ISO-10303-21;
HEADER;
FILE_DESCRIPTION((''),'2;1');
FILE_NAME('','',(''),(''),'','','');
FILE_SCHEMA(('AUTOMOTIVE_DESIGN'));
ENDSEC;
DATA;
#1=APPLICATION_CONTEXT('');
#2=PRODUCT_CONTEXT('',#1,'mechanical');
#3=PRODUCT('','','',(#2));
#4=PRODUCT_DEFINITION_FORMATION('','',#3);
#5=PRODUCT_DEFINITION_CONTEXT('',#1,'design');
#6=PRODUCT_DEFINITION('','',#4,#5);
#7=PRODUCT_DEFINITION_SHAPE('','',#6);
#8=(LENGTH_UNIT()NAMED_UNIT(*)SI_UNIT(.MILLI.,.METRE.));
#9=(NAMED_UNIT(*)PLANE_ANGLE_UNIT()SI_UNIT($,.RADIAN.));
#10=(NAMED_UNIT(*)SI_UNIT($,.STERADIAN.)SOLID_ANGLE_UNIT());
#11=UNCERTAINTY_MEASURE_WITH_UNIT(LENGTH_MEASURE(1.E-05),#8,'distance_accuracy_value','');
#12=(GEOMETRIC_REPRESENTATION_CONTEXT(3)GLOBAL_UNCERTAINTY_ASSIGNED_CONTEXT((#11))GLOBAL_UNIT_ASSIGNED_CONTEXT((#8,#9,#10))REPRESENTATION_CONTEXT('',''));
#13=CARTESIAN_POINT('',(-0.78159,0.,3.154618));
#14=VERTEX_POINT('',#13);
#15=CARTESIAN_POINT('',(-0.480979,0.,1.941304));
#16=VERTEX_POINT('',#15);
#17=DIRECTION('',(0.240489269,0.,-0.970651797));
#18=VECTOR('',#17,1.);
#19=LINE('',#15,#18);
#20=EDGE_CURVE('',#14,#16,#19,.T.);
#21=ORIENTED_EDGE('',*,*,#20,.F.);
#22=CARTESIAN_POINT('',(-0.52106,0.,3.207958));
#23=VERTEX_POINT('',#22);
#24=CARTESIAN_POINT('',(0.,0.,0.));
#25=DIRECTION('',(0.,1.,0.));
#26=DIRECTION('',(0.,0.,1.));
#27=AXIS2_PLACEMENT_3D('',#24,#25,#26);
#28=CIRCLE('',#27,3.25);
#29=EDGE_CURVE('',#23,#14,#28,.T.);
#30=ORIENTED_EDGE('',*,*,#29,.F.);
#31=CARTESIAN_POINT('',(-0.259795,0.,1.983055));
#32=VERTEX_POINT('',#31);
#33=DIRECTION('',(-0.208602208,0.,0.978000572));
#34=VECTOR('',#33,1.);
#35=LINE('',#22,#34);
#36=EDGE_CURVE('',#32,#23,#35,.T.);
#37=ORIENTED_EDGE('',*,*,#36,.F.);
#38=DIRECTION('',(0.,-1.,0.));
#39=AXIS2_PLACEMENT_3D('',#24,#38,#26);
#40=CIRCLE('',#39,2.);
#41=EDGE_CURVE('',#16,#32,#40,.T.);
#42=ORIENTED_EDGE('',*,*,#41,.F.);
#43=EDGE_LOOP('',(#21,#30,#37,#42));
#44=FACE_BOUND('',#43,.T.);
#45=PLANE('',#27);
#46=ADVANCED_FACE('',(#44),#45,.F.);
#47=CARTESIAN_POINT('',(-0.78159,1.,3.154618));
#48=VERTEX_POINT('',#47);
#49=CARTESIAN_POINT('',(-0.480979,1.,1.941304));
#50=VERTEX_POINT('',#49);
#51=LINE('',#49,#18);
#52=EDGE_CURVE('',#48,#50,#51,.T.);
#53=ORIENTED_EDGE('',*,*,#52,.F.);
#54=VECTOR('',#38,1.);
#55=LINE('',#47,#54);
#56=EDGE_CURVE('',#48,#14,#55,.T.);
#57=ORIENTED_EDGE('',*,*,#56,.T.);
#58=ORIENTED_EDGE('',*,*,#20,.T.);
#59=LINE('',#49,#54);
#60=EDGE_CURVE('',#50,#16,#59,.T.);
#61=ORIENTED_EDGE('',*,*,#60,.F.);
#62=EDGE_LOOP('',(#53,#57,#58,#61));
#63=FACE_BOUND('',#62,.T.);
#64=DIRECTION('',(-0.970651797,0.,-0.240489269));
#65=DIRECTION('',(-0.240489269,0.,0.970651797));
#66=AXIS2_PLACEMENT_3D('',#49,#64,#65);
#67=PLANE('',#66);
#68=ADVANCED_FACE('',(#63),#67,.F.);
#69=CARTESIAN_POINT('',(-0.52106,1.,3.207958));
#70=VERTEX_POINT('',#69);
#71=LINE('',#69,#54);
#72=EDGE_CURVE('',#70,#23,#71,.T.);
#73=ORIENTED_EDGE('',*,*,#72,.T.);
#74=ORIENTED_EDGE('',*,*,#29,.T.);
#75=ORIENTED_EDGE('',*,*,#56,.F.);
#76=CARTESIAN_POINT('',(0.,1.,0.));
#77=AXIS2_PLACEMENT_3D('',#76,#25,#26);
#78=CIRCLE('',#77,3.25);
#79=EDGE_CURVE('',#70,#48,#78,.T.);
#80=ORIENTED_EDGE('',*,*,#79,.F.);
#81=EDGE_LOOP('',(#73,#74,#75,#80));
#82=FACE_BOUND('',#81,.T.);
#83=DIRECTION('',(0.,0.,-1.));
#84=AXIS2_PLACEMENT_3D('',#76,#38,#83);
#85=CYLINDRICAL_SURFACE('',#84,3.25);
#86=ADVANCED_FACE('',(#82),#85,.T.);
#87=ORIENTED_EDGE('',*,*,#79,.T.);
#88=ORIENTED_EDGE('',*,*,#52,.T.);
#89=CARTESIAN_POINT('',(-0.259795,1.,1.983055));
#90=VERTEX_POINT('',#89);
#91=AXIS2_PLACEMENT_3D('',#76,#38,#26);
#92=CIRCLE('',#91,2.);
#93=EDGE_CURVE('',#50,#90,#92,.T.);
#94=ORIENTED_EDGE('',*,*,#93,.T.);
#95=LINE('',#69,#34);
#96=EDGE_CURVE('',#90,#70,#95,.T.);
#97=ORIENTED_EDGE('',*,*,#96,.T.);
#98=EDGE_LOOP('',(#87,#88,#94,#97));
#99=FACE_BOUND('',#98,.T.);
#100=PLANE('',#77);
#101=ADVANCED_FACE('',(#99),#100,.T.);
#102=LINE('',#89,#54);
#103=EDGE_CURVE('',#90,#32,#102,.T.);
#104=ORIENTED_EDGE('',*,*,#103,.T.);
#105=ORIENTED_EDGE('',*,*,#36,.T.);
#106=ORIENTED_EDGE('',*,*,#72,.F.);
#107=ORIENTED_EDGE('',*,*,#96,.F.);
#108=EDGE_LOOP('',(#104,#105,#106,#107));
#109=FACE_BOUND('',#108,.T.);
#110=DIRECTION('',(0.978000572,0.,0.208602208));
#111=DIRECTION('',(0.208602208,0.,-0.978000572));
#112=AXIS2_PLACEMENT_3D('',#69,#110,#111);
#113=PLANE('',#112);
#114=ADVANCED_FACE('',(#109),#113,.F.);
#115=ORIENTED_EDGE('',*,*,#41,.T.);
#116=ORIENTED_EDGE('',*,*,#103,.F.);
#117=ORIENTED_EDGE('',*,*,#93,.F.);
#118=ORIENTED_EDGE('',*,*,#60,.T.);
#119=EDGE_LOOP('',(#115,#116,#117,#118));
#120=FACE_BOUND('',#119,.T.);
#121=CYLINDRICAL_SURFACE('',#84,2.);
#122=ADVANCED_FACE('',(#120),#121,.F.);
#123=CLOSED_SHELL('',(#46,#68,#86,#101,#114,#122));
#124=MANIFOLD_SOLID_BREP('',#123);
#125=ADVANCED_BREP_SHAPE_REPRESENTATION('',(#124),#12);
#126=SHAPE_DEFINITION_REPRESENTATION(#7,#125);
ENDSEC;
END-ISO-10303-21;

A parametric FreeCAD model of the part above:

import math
import FreeCAD as App
import Part
import Sketcher
from FreeCAD import Vector
Q = App.Units.Quantity

doc = App.newDocument("Part")
body = doc.addObject("PartDesign::Body", "Body")

# Sketch on XZ plane
sketch1 = doc.addObject("Sketcher::SketchObject", "Sketch")
body.addObject(sketch1)
sketch1.AttachmentSupport = (doc.XZ_Plane, [""])
sketch1.MapMode = "FlatFace"
sketch1.addGeometry(Part.LineSegment(Vector(-0.78, 3.15, 0), Vector(-0.48, 1.94, 0)), False)
sketch1.addGeometry(Part.ArcOfCircle(Part.Circle(Vector(0, 0, 0), Vector(0, 0, 1), 2), math.radians(104), math.radians(457)), False)
sketch1.addGeometry(Part.LineSegment(Vector(-0.26, 1.98, 0), Vector(-0.52, 3.21, 0)), False)
sketch1.addGeometry(Part.ArcOfCircle(Part.Circle(Vector(0, 0, 0), Vector(0, 0, 1), 3.25), math.radians(104), math.radians(459)), False)
sketch1.addConstraint(Sketcher.Constraint("Coincident", 0, 2, 1, 1))
sketch1.addConstraint(Sketcher.Constraint("Coincident", 1, 2, 2, 1))
sketch1.addConstraint(Sketcher.Constraint("Coincident", 2, 2, 3, 2))
sketch1.addConstraint(Sketcher.Constraint("Coincident", 3, 1, 0, 1))
sketch1.addConstraint(Sketcher.Constraint("Coincident", 1, 3, -1, 1))
sketch1.addConstraint(Sketcher.Constraint("Coincident", 3, 3, -1, 1))
sketch1.addConstraint(Sketcher.Constraint("Radius", 1, Q("2 mm")))
sketch1.addConstraint(Sketcher.Constraint("Radius", 3, Q("3.25 mm")))
sketch1.addConstraint(Sketcher.Constraint("DistanceX", 0, 2, -1, 1, Q("0.480979 mm")))
sketch1.addConstraint(Sketcher.Constraint("DistanceX", 2, 2, -1, 1, Q("0.52106 mm")))
sketch1.addConstraint(Sketcher.Constraint("DistanceX", 3, 1, -1, 1, Q("0.78159 mm")))
sketch1.addConstraint(Sketcher.Constraint("DistanceY", 0, 2, 1, 2, Q("0.041751 mm")))
pad1 = doc.addObject("PartDesign::Pad", "Pad")
body.addObject(pad1)
pad1.Profile = sketch1
pad1.Length = 1
pad1.Reversed = True

doc.recompute()
